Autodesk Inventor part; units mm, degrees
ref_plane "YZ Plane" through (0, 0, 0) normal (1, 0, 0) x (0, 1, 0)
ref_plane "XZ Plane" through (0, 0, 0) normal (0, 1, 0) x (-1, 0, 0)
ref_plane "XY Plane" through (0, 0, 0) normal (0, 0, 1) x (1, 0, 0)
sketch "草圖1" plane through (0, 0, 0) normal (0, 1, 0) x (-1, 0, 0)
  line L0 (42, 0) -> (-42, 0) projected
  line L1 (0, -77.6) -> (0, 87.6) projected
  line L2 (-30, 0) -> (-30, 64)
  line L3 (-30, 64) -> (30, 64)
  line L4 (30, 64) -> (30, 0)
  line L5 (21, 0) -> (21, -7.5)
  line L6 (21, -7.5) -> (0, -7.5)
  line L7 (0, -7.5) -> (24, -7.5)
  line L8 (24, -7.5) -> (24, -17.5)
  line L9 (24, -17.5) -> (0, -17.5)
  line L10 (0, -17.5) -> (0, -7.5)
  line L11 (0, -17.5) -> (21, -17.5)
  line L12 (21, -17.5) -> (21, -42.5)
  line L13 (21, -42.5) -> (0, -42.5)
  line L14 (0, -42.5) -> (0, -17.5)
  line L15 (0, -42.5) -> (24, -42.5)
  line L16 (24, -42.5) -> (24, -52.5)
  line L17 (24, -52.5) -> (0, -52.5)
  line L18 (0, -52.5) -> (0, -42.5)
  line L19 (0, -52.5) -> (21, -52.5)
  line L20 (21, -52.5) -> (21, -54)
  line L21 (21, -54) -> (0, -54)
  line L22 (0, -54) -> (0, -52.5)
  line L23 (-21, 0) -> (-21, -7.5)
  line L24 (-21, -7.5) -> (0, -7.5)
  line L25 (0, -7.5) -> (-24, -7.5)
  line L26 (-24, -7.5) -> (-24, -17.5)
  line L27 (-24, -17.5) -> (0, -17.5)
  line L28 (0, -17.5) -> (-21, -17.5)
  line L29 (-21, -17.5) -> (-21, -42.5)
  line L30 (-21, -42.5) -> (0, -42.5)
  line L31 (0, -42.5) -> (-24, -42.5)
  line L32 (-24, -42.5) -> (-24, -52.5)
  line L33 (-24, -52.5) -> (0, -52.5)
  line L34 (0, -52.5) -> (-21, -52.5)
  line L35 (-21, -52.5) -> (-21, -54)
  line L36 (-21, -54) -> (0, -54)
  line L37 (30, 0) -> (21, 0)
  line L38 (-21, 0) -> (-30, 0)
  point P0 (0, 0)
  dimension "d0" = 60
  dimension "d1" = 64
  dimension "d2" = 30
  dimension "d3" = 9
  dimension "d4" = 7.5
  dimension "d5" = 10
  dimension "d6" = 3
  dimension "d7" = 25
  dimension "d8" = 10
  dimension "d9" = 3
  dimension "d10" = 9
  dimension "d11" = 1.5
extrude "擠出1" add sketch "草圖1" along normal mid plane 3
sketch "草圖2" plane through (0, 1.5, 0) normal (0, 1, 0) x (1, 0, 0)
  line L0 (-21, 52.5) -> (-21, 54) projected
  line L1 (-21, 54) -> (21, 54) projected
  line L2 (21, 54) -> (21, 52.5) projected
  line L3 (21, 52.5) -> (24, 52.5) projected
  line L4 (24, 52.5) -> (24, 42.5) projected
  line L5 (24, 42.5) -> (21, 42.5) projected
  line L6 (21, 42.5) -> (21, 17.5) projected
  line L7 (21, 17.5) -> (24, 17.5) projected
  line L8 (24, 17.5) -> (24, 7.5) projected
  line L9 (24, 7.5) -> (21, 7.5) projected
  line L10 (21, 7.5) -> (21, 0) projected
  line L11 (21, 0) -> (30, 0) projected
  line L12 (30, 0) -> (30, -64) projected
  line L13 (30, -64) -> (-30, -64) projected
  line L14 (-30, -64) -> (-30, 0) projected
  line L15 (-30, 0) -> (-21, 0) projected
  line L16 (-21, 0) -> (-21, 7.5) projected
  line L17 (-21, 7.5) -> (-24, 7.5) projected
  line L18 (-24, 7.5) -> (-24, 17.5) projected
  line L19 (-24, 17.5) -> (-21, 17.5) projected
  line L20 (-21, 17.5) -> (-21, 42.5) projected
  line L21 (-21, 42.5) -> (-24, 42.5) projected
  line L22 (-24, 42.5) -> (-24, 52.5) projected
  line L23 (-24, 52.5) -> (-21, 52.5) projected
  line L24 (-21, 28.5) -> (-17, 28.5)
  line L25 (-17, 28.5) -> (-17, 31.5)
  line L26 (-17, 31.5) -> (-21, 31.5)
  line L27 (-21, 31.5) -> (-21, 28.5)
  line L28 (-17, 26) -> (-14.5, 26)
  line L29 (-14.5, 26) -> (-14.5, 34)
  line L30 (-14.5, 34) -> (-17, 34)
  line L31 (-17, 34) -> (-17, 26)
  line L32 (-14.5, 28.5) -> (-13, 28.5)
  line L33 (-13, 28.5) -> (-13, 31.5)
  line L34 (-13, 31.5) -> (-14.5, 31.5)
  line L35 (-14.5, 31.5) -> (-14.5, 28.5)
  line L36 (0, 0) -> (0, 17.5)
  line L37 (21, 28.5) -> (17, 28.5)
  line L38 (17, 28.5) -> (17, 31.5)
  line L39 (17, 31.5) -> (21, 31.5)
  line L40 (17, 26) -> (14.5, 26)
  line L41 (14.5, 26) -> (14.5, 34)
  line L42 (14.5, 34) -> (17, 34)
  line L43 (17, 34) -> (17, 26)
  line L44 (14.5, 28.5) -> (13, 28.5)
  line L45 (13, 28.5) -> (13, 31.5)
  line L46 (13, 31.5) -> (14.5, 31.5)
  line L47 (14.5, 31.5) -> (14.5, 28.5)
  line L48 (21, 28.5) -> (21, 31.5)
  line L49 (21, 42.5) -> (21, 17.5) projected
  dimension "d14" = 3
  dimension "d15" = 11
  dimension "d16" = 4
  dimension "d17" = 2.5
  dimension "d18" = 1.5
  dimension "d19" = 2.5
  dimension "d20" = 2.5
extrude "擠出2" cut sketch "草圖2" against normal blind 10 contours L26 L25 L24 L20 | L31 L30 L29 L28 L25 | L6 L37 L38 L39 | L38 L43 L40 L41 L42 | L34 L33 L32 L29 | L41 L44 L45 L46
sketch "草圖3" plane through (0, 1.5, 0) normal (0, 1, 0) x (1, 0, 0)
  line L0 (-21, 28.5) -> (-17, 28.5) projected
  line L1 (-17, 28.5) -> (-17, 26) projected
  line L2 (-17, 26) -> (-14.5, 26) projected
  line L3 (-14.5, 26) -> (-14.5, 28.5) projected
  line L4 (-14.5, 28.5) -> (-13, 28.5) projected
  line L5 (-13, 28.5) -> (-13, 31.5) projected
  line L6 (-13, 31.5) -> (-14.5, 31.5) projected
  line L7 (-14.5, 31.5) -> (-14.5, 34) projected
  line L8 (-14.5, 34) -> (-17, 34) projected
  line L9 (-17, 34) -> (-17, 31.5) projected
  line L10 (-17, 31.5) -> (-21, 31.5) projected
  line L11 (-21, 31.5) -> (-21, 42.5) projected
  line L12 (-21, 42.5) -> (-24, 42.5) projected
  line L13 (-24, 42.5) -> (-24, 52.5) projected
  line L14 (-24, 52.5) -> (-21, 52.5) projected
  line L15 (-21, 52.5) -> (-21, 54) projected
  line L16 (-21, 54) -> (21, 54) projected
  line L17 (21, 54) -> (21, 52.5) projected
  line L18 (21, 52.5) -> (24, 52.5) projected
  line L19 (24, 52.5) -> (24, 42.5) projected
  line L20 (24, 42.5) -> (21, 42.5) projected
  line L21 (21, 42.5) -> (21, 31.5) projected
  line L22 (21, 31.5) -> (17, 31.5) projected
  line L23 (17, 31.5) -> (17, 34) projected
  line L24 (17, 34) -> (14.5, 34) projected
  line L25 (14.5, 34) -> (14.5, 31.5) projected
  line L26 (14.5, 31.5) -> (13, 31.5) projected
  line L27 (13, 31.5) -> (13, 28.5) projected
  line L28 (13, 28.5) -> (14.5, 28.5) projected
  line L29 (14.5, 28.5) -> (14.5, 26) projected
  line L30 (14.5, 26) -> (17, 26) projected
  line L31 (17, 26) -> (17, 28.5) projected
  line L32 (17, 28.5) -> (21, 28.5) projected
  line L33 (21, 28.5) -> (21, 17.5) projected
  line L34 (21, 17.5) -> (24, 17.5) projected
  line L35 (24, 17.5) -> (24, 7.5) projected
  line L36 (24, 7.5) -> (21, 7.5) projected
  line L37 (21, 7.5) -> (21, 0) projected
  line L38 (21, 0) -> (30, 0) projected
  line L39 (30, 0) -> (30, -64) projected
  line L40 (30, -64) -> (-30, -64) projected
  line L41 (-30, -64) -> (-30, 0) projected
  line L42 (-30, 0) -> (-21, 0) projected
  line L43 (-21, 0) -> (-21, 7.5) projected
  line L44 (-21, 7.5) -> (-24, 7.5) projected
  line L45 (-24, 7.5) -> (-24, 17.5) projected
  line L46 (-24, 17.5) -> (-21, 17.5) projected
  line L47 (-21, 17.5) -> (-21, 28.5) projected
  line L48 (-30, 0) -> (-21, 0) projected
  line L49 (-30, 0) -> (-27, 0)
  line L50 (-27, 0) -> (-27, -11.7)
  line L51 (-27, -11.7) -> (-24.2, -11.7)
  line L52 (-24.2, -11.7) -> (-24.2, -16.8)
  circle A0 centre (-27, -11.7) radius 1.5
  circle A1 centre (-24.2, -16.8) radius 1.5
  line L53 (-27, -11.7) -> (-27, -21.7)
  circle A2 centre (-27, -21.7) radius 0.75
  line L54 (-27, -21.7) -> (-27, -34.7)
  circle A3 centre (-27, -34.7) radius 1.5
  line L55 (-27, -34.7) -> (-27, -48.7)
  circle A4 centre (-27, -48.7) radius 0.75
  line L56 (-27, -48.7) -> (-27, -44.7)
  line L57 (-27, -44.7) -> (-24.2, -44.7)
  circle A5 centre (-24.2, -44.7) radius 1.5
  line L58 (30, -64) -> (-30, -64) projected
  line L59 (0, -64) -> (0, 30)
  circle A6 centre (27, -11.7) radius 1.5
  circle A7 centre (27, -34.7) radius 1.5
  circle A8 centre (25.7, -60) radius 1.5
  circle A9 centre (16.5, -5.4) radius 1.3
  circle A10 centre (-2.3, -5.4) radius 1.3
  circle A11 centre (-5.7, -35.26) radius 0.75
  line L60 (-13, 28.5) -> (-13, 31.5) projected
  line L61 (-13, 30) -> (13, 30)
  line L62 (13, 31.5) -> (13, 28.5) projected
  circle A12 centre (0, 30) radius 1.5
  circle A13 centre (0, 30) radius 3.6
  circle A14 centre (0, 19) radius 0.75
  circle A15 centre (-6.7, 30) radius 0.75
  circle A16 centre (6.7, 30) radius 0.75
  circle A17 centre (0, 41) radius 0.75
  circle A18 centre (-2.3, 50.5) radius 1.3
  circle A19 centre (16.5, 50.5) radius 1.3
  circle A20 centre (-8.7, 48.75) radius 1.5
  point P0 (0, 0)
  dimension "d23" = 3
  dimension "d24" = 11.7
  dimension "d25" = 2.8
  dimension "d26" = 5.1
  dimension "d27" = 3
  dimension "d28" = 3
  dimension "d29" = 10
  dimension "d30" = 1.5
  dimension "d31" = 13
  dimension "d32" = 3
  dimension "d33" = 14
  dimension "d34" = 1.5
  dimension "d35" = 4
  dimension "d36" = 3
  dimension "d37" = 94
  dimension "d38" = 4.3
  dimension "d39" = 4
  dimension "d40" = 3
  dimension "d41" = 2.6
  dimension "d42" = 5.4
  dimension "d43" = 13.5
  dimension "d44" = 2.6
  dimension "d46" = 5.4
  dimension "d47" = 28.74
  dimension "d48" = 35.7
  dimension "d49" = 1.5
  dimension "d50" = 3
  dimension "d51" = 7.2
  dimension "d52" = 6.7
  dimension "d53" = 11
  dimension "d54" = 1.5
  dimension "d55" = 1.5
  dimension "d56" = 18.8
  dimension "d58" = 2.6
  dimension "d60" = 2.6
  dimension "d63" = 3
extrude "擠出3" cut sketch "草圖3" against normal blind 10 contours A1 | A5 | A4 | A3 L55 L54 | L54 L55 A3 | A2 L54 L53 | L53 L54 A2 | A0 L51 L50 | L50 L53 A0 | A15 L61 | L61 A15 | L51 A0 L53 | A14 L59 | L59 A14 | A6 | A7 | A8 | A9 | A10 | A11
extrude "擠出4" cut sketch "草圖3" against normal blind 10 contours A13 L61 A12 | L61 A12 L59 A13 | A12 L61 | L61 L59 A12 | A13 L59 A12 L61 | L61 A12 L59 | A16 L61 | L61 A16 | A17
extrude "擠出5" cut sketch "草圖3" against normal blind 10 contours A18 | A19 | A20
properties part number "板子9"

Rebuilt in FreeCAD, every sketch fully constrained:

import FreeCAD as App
import Part
import Sketcher
from FreeCAD import Vector


def add_polygon(sketch, points):
    """Adds a closed chain of lines whose ends are joined by coincident constraints."""
    first, n = sketch.GeometryCount, len(points)
    for a, b in zip(points, points[1:] + points[:1]):
        sketch.addGeometry(Part.LineSegment(App.Vector(*a, 0), App.Vector(*b, 0)), False)
    for i in range(n):
        sketch.addConstraint(Sketcher.Constraint("Coincident", first + i, 2, first + (i + 1) % n, 1))

doc = App.newDocument("Part")
body = doc.addObject("PartDesign::Body", "Body")

# Sketch on XZ plane
sketch1 = doc.addObject("Sketcher::SketchObject", "Sketch")
body.addObject(sketch1)
sketch1.AttachmentSupport = (doc.XZ_Plane, [""])
sketch1.MapMode = "FlatFace"
add_polygon(sketch1, [(-21, 0), (-30, 0), (-30, 64), (30, 64), (30, 0), (21, 0), (21, -7.5), (24, -7.5), (24, -17.5), (21, -17.5), (21, -42.5), (24, -42.5), (24, -52.5), (21, -52.5), (21, -54), (-21, -54), (-21, -52.5), (-24, -52.5), (-24, -42.5), (-21, -42.5), (-21, -17.5), (-24, -17.5), (-24, -7.5), (-21, -7.5)])  # lines 0-23
sketch1.addConstraint(Sketcher.Constraint("Horizontal", 0))
sketch1.addConstraint(Sketcher.Constraint("Vertical", 1))
sketch1.addConstraint(Sketcher.Constraint("Horizontal", 2))
sketch1.addConstraint(Sketcher.Constraint("Vertical", 3))
sketch1.addConstraint(Sketcher.Constraint("Horizontal", 4))
sketch1.addConstraint(Sketcher.Constraint("Vertical", 5))
sketch1.addConstraint(Sketcher.Constraint("Horizontal", 6))
sketch1.addConstraint(Sketcher.Constraint("Vertical", 7))
sketch1.addConstraint(Sketcher.Constraint("Horizontal", 8))
sketch1.addConstraint(Sketcher.Constraint("Vertical", 9))
sketch1.addConstraint(Sketcher.Constraint("Horizontal", 10))
sketch1.addConstraint(Sketcher.Constraint("Vertical", 11))
sketch1.addConstraint(Sketcher.Constraint("Horizontal", 12))
sketch1.addConstraint(Sketcher.Constraint("Vertical", 13))
sketch1.addConstraint(Sketcher.Constraint("Horizontal", 14))
sketch1.addConstraint(Sketcher.Constraint("Vertical", 15))
sketch1.addConstraint(Sketcher.Constraint("Horizontal", 16))
sketch1.addConstraint(Sketcher.Constraint("Vertical", 17))
sketch1.addConstraint(Sketcher.Constraint("Horizontal", 18))
sketch1.addConstraint(Sketcher.Constraint("Vertical", 19))
sketch1.addConstraint(Sketcher.Constraint("Horizontal", 20))
sketch1.addConstraint(Sketcher.Constraint("Vertical", 21))
sketch1.addConstraint(Sketcher.Constraint("Horizontal", 22))
sketch1.addConstraint(Sketcher.Constraint("Vertical", 23))
sketch1.addConstraint(Sketcher.Constraint("Symmetric", 0, 2, 3, 2, -1, 1))
sketch1.addConstraint(Sketcher.Constraint("Symmetric", 12, 2, 15, 2, -2))
sketch1.addConstraint(Sketcher.Constraint("Symmetric", 10, 2, 17, 2, -2))
sketch1.addConstraint(Sketcher.Constraint("Symmetric", 8, 2, 19, 2, -2))
sketch1.addConstraint(Sketcher.Constraint("Symmetric", 6, 2, 21, 2, -2))
sketch1.addConstraint(Sketcher.Constraint("Symmetric", 4, 2, 23, 2, -2))
sketch1.addConstraint(Sketcher.Constraint("Vertical", 5, 2, 8, 2))
sketch1.addConstraint(Sketcher.Constraint("Vertical", 7, 2, 10, 2))
sketch1.addConstraint(Sketcher.Constraint("Vertical", 9, 2, 12, 2))
sketch1.addConstraint(Sketcher.Constraint("Equal", 7, 11))
sketch1.addConstraint(Sketcher.Constraint("DistanceX", 0, 2, 0, 1, 9.0))
sketch1.addConstraint(Sketcher.Constraint("DistanceX", 2, 1, 2, 2, 60.0))
sketch1.addConstraint(Sketcher.Constraint("DistanceX", 6, 1, 6, 2, 3.0))
sketch1.addConstraint(Sketcher.Constraint("DistanceY", 1, 1, 1, 2, 64.0))
sketch1.addConstraint(Sketcher.Constraint("DistanceY", 7, 2, 7, 1, 10.0))
sketch1.addConstraint(Sketcher.Constraint("DistanceY", 9, 2, 9, 1, 25.0))
sketch1.addConstraint(Sketcher.Constraint("DistanceY", 5, 2, 5, 1, 7.5))
sketch1.addConstraint(Sketcher.Constraint("DistanceY", 13, 2, 13, 1, 1.5))
pad1 = doc.addObject("PartDesign::Pad", "Pad")
body.addObject(pad1)
pad1.Profile = sketch1
pad1.Length = 3
pad1.Midplane = True

# Sketch on XZ plane
sketch2 = doc.addObject("Sketcher::SketchObject", "Sketch001")
body.addObject(sketch2)
sketch2.AttachmentSupport = (doc.XZ_Plane, [""])
sketch2.MapMode = "FlatFace"
sketch2.AttachmentOffset = App.Placement(Vector(0, 0, -1.5), App.Rotation())
add_polygon(sketch2, [(-17, -31.5), (-21, -31.5), (-21, -28.5), (-17, -28.5), (-17, -26), (-14.5, -26), (-14.5, -28.5), (-13, -28.5), (-13, -31.5), (-14.5, -31.5), (-14.5, -34), (-17, -34)])  # lines 0-11
add_polygon(sketch2, [(21, -28.5), (21, -31.5), (17, -31.5), (17, -34), (14.5, -34), (14.5, -31.5), (13, -31.5), (13, -28.5), (14.5, -28.5), (14.5, -26), (17, -26), (17, -28.5)])  # lines 12-23
sketch2.addConstraint(Sketcher.Constraint("Horizontal", 0))
sketch2.addConstraint(Sketcher.Constraint("Vertical", 1))
sketch2.addConstraint(Sketcher.Constraint("Horizontal", 2))
sketch2.addConstraint(Sketcher.Constraint("Vertical", 3))
sketch2.addConstraint(Sketcher.Constraint("Horizontal", 4))
sketch2.addConstraint(Sketcher.Constraint("Vertical", 5))
sketch2.addConstraint(Sketcher.Constraint("Horizontal", 6))
sketch2.addConstraint(Sketcher.Constraint("Vertical", 7))
sketch2.addConstraint(Sketcher.Constraint("Horizontal", 8))
sketch2.addConstraint(Sketcher.Constraint("Vertical", 9))
sketch2.addConstraint(Sketcher.Constraint("Horizontal", 10))
sketch2.addConstraint(Sketcher.Constraint("Vertical", 11))
sketch2.addConstraint(Sketcher.Constraint("Vertical", 12))
sketch2.addConstraint(Sketcher.Constraint("Horizontal", 13))
sketch2.addConstraint(Sketcher.Constraint("Vertical", 14))
sketch2.addConstraint(Sketcher.Constraint("Horizontal", 15))
sketch2.addConstraint(Sketcher.Constraint("Vertical", 16))
sketch2.addConstraint(Sketcher.Constraint("Horizontal", 17))
sketch2.addConstraint(Sketcher.Constraint("Vertical", 18))
sketch2.addConstraint(Sketcher.Constraint("Horizontal", 19))
sketch2.addConstraint(Sketcher.Constraint("Vertical", 20))
sketch2.addConstraint(Sketcher.Constraint("Horizontal", 21))
sketch2.addConstraint(Sketcher.Constraint("Vertical", 22))
sketch2.addConstraint(Sketcher.Constraint("Horizontal", 23))
sketch2.addConstraint(Sketcher.Constraint("Symmetric", 0, 2, 12, 2, -2))
sketch2.addConstraint(Sketcher.Constraint("Symmetric", 10, 2, 14, 2, -2))
sketch2.addConstraint(Sketcher.Constraint("Symmetric", 8, 2, 16, 2, -2))
sketch2.addConstraint(Sketcher.Constraint("Symmetric", 6, 2, 18, 2, -2))
sketch2.addConstraint(Sketcher.Constraint("Symmetric", 4, 2, 20, 2, -2))
sketch2.addConstraint(Sketcher.Constraint("Symmetric", 2, 2, 22, 2, -2))
sketch2.addConstraint(Sketcher.Constraint("Horizontal", 2, 2, 5, 2))
sketch2.addConstraint(Sketcher.Constraint("Horizontal", 0, 2, 7, 2))
sketch2.addConstraint(Sketcher.Constraint("Vertical", 5, 2, 8, 2))
sketch2.addConstraint(Sketcher.Constraint("Vertical", 3, 2, 10, 2))
sketch2.addConstraint(Sketcher.Constraint("Equal", 21, 3))
sketch2.addConstraint(Sketcher.Constraint("Equal", 5, 9))
sketch2.addConstraint(Sketcher.Constraint("DistanceX", 0, 2, 0, 1, 4.0))
sketch2.addConstraint(Sketcher.Constraint("DistanceY", 1, 1, 1, 2, 3.0))
sketch2.addConstraint(Sketcher.Constraint("DistanceX", 4, 1, 4, 2, 2.5))
sketch2.addConstraint(Sketcher.Constraint("DistanceX", 6, 1, 6, 2, 1.5))
sketch2.addConstraint(Sketcher.Constraint("DistanceX", 0, 2, -1, 1, 21.0))
sketch2.addConstraint(Sketcher.Constraint("DistanceY", 3, 2, -1, 1, 26.0))
pocket1 = doc.addObject("PartDesign::Pocket", "Pocket")
body.addObject(pocket1)
pocket1.Profile = sketch2
pocket1.Length = 10
pocket1.Reversed = True

# Sketch on XZ plane
sketch3 = doc.addObject("Sketcher::SketchObject", "Sketch002")
body.addObject(sketch3)
sketch3.AttachmentSupport = (doc.XZ_Plane, [""])
sketch3.MapMode = "FlatFace"
sketch3.AttachmentOffset = App.Placement(Vector(0, 0, -1.5), App.Rotation())
sketch3.addGeometry(Part.Circle(Vector(-24.2, 16.8, 0), Vector(0, 0, 1), 1.5), False)
sketch3.addGeometry(Part.Circle(Vector(-24.2, 44.7, 0), Vector(0, 0, 1), 1.5), False)
sketch3.addGeometry(Part.Circle(Vector(-27, 48.7, 0), Vector(0, 0, 1), 0.8), False)
sketch3.addGeometry(Part.Circle(Vector(-27, 34.7, 0), Vector(0, 0, 1), 1.5), False)
sketch3.addGeometry(Part.Circle(Vector(-27, 21.7, 0), Vector(0, 0, 1), 0.8), False)
sketch3.addGeometry(Part.Circle(Vector(-27, 11.7, 0), Vector(0, 0, 1), 1.5), False)
sketch3.addGeometry(Part.Circle(Vector(-6.7, -30, 0), Vector(0, 0, 1), 0.8), False)
sketch3.addGeometry(Part.Circle(Vector(0, -19, 0), Vector(0, 0, 1), 0.8), False)
sketch3.addGeometry(Part.Circle(Vector(27, 11.7, 0), Vector(0, 0, 1), 1.5), False)
sketch3.addGeometry(Part.Circle(Vector(27, 34.7, 0), Vector(0, 0, 1), 1.5), False)
sketch3.addGeometry(Part.Circle(Vector(25.7, 60, 0), Vector(0, 0, 1), 1.5), False)
sketch3.addGeometry(Part.Circle(Vector(16.5, 5.4, 0), Vector(0, 0, 1), 1.3), False)
sketch3.addGeometry(Part.Circle(Vector(-2.3, 5.4, 0), Vector(0, 0, 1), 1.3), False)
sketch3.addGeometry(Part.Circle(Vector(-5.7, 35.3, 0), Vector(0, 0, 1), 0.8), False)
sketch3.addConstraint(Sketcher.Constraint("Equal", 0, 1))
sketch3.addConstraint(Sketcher.Constraint("Equal", 1, 3))
sketch3.addConstraint(Sketcher.Constraint("Equal", 2, 4))
sketch3.addConstraint(Sketcher.Constraint("Equal", 3, 5))
sketch3.addConstraint(Sketcher.Constraint("Equal", 4, 6))
sketch3.addConstraint(Sketcher.Constraint("Equal", 6, 7))
sketch3.addConstraint(Sketcher.Constraint("Equal", 5, 8))
sketch3.addConstraint(Sketcher.Constraint("Equal", 8, 9))
sketch3.addConstraint(Sketcher.Constraint("Equal", 9, 10))
sketch3.addConstraint(Sketcher.Constraint("Equal", 11, 12))
sketch3.addConstraint(Sketcher.Constraint("Equal", 7, 13))
sketch3.addConstraint(Sketcher.Constraint("Symmetric", 5, 3, 8, 3, -2))
sketch3.addConstraint(Sketcher.Constraint("Symmetric", 3, 3, 9, 3, -2))
sketch3.addConstraint(Sketcher.Constraint("PointOnObject", 7, 3, -2))
sketch3.addConstraint(Sketcher.Constraint("Horizontal", 11, 3, 12, 3))
sketch3.addConstraint(Sketcher.Constraint("Vertical", 0, 3, 1, 3))
sketch3.addConstraint(Sketcher.Constraint("Vertical", 2, 3, 3, 3))
sketch3.addConstraint(Sketcher.Constraint("Vertical", 3, 3, 4, 3))
sketch3.addConstraint(Sketcher.Constraint("Vertical", 4, 3, 5, 3))
sketch3.addConstraint(Sketcher.Constraint("Diameter", 0, 3.0))
sketch3.addConstraint(Sketcher.Constraint("Diameter", 2, 1.5))
sketch3.addConstraint(Sketcher.Constraint("Diameter", 11, 2.6))
sketch3.addConstraint(Sketcher.Constraint("DistanceY", 1, 3, 2, 3, 4.0))
sketch3.addConstraint(Sketcher.Constraint("DistanceY", 3, 3, 1, 3, 10.0))
sketch3.addConstraint(Sketcher.Constraint("DistanceY", 4, 3, 3, 3, 13.0))
sketch3.addConstraint(Sketcher.Constraint("DistanceY", 5, 3, 4, 3, 10.0))
sketch3.addConstraint(Sketcher.Constraint("DistanceY", 6, 3, 7, 3, 11.0))
sketch3.addConstraint(Sketcher.Constraint("DistanceY", -1, 1, 5, 3, 11.7))
sketch3.addConstraint(Sketcher.Constraint("DistanceX", 6, 3, -1, 1, 6.7))
sketch3.addConstraint(Sketcher.Constraint("DistanceY", -1, 1, 11, 3, 5.4))
sketch3.addConstraint(Sketcher.Constraint("DistanceX", 2, 3, 1, 3, 2.8))
sketch3.addConstraint(Sketcher.Constraint("DistanceY", 5, 3, 0, 3, 5.1))
sketch3.addConstraint(Sketcher.Constraint("DistanceX", 12, 3, 11, 3, 18.8))
sketch3.addConstraint(Sketcher.Constraint("DistanceX", 2, 3, -1, 1, 27.0))
sketch3.addConstraint(Sketcher.Constraint("DistanceY", 6, 3, -1, 1, 30.0))
sketch3.addConstraint(Sketcher.Constraint("DistanceY", -1, 1, 10, 3, 60.0))
sketch3.addConstraint(Sketcher.Constraint("DistanceX", -1, 1, 10, 3, 25.7))
sketch3.addConstraint(Sketcher.Constraint("DistanceX", -1, 1, 11, 3, 16.5))
sketch3.addConstraint(Sketcher.Constraint("DistanceX", 13, 3, -1, 1, 5.7))
sketch3.addConstraint(Sketcher.Constraint("DistanceY", -1, 1, 13, 3, 35.26))
pocket2 = doc.addObject("PartDesign::Pocket", "Pocket001")
body.addObject(pocket2)
pocket2.Profile = sketch3
pocket2.Length = 10
pocket2.Reversed = True

# Sketch on XZ plane
sketch4 = doc.addObject("Sketcher::SketchObject", "Sketch003")
body.addObject(sketch4)
sketch4.AttachmentSupport = (doc.XZ_Plane, [""])
sketch4.MapMode = "FlatFace"
sketch4.AttachmentOffset = App.Placement(Vector(0, 0, -1.5), App.Rotation())
sketch4.addGeometry(Part.Circle(Vector(0, -30, 0), Vector(0, 0, 1), 3.6), False)
sketch4.addGeometry(Part.Circle(Vector(6.7, -30, 0), Vector(0, 0, 1), 0.8), False)
sketch4.addGeometry(Part.Circle(Vector(0, -41, 0), Vector(0, 0, 1), 0.8), False)
sketch4.addConstraint(Sketcher.Constraint("Equal", 1, 2))
sketch4.addConstraint(Sketcher.Constraint("PointOnObject", 0, 3, -2))
sketch4.addConstraint(Sketcher.Constraint("PointOnObject", 2, 3, -2))
sketch4.addConstraint(Sketcher.Constraint("Horizontal", 0, 3, 1, 3))
sketch4.addConstraint(Sketcher.Constraint("Diameter", 0, 7.2))
sketch4.addConstraint(Sketcher.Constraint("Diameter", 1, 1.5))
sketch4.addConstraint(Sketcher.Constraint("DistanceY", 2, 3, 0, 3, 11.0))
sketch4.addConstraint(Sketcher.Constraint("DistanceX", -1, 1, 1, 3, 6.7))
sketch4.addConstraint(Sketcher.Constraint("DistanceY", 0, 3, -1, 1, 30.0))
pocket3 = doc.addObject("PartDesign::Pocket", "Pocket002")
body.addObject(pocket3)
pocket3.Profile = sketch4
pocket3.Length = 10
pocket3.Reversed = True

# Sketch on XZ plane
sketch5 = doc.addObject("Sketcher::SketchObject", "Sketch004")
body.addObject(sketch5)
sketch5.AttachmentSupport = (doc.XZ_Plane, [""])
sketch5.MapMode = "FlatFace"
sketch5.AttachmentOffset = App.Placement(Vector(0, 0, -1.5), App.Rotation())
sketch5.addGeometry(Part.Circle(Vector(-2.3, -50.5, 0), Vector(0, 0, 1), 1.3), False)
sketch5.addGeometry(Part.Circle(Vector(16.5, -50.5, 0), Vector(0, 0, 1), 1.3), False)
sketch5.addGeometry(Part.Circle(Vector(-8.7, -48.8, 0), Vector(0, 0, 1), 1.5), False)
sketch5.addConstraint(Sketcher.Constraint("Equal", 0, 1))
sketch5.addConstraint(Sketcher.Constraint("Horizontal", 0, 3, 1, 3))
sketch5.addConstraint(Sketcher.Constraint("Diameter", 2, 3.0))
sketch5.addConstraint(Sketcher.Constraint("Diameter", 0, 2.6))
sketch5.addConstraint(Sketcher.Constraint("DistanceX", 0, 3, 1, 3, 18.8))
sketch5.addConstraint(Sketcher.Constraint("DistanceX", 0, 3, -1, 1, 2.3))
sketch5.addConstraint(Sketcher.Constraint("DistanceY", 0, 3, -1, 1, 50.5))
sketch5.addConstraint(Sketcher.Constraint("DistanceX", 2, 3, -1, 1, 8.7))
sketch5.addConstraint(Sketcher.Constraint("DistanceY", 2, 3, -1, 1, 48.75))
pocket4 = doc.addObject("PartDesign::Pocket", "Pocket003")
body.addObject(pocket4)
pocket4.Profile = sketch5
pocket4.Length = 10
pocket4.Reversed = True

doc.recompute()
